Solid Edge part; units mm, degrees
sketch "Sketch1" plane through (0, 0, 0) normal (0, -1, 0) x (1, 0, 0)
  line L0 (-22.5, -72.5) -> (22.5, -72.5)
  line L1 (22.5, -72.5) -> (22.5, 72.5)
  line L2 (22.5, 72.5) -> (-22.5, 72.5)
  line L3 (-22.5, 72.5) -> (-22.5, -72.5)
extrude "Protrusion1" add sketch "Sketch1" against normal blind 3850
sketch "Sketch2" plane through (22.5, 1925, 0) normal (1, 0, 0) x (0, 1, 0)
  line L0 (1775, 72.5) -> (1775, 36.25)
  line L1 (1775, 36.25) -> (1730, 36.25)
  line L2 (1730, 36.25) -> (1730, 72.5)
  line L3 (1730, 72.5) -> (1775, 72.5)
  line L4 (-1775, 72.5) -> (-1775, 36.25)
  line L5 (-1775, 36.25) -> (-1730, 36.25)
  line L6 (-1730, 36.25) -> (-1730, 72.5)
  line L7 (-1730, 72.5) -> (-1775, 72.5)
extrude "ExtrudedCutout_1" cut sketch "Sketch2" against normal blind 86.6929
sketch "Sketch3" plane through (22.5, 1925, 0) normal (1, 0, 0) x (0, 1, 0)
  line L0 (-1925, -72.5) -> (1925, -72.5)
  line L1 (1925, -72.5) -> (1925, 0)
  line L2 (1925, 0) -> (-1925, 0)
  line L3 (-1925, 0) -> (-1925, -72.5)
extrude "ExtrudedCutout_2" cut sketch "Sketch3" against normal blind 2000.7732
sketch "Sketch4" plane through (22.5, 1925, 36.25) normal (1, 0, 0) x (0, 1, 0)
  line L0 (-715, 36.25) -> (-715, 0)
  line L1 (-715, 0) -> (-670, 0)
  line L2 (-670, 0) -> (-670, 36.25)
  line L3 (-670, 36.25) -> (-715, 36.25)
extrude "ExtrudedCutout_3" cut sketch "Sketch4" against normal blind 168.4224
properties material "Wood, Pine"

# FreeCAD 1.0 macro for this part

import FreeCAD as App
import Part
import Sketcher
from FreeCAD import Vector


def add_polygon(sketch, points):
    """Adds a closed chain of lines whose ends are joined by coincident constraints."""
    first, n = sketch.GeometryCount, len(points)
    for a, b in zip(points, points[1:] + points[:1]):
        sketch.addGeometry(Part.LineSegment(App.Vector(*a, 0), App.Vector(*b, 0)), False)
    for i in range(n):
        sketch.addConstraint(Sketcher.Constraint("Coincident", first + i, 2, first + (i + 1) % n, 1))

doc = App.newDocument("Part")
body = doc.addObject("PartDesign::Body", "Body")

# Sketch on XZ plane
sketch1 = body.newObject("Sketcher::SketchObject", "Sketch")
sketch1.AttachmentSupport = (doc.getObject("XZ_Plane"), [""])
sketch1.MapMode = "FlatFace"
add_polygon(sketch1, [(-22.5, 72.5), (-22.5, -72.5), (22.5, -72.5), (22.5, 72.5)])  # lines 0-3
sketch1.addConstraint(Sketcher.Constraint("Vertical", 0))
sketch1.addConstraint(Sketcher.Constraint("Horizontal", 1))
sketch1.addConstraint(Sketcher.Constraint("Vertical", 2))
sketch1.addConstraint(Sketcher.Constraint("Horizontal", 3))
sketch1.addConstraint(Sketcher.Constraint("Symmetric", 0, 2, 2, 2, -1, 1))
sketch1.addConstraint(Sketcher.Constraint("DistanceX", 1, 1, 1, 2, 45.0))
sketch1.addConstraint(Sketcher.Constraint("DistanceY", 0, 2, 0, 1, 145.0))
pad1 = body.newObject("PartDesign::Pad", "Pad")
pad1.Profile = sketch1
pad1.Length = 3850
pad1.Reversed = True

# Sketch on YZ plane
sketch2 = body.newObject("Sketcher::SketchObject", "Sketch001")
sketch2.AttachmentSupport = (doc.getObject("YZ_Plane"), [""])
sketch2.MapMode = "FlatFace"
sketch2.AttachmentOffset = App.Placement(Vector(0, 0, 22.5), App.Rotation())
add_polygon(sketch2, [(3700, 36.25), (3700, 72.5), (3655, 72.5), (3655, 36.25)])  # lines 0-3
add_polygon(sketch2, [(195, 72.5), (150, 72.5), (150, 36.25), (195, 36.25)])  # lines 4-7
sketch2.addConstraint(Sketcher.Constraint("Vertical", 0))
sketch2.addConstraint(Sketcher.Constraint("Horizontal", 1))
sketch2.addConstraint(Sketcher.Constraint("Vertical", 2))
sketch2.addConstraint(Sketcher.Constraint("Horizontal", 3))
sketch2.addConstraint(Sketcher.Constraint("Horizontal", 4))
sketch2.addConstraint(Sketcher.Constraint("Vertical", 5))
sketch2.addConstraint(Sketcher.Constraint("Horizontal", 6))
sketch2.addConstraint(Sketcher.Constraint("Vertical", 7))
sketch2.addConstraint(Sketcher.Constraint("Horizontal", 1, 2, 4, 2))
sketch2.addConstraint(Sketcher.Constraint("Horizontal", 3, 2, 5, 2))
sketch2.addConstraint(Sketcher.Constraint("Equal", 3, 4))
sketch2.addConstraint(Sketcher.Constraint("DistanceX", 1, 2, 1, 1, 45.0))
sketch2.addConstraint(Sketcher.Constraint("DistanceX", -1, 1, 0, 2, 3700.0))
sketch2.addConstraint(Sketcher.Constraint("DistanceX", -1, 1, 4, 2, 150.0))
sketch2.addConstraint(Sketcher.Constraint("DistanceY", 0, 1, 0, 2, 36.25))
sketch2.addConstraint(Sketcher.Constraint("DistanceY", -1, 1, 0, 2, 72.5))
pocket1 = body.newObject("PartDesign::Pocket", "Pocket")
pocket1.Profile = sketch2
pocket1.Length = 86.6929

# Sketch on YZ plane
sketch3 = body.newObject("Sketcher::SketchObject", "Sketch002")
sketch3.AttachmentSupport = (doc.getObject("YZ_Plane"), [""])
sketch3.MapMode = "FlatFace"
sketch3.AttachmentOffset = App.Placement(Vector(0, 0, 22.5), App.Rotation())
add_polygon(sketch3, [(0, 0), (0, -72.5), (3850, -72.5), (3850, 0)])  # lines 0-3
sketch3.addConstraint(Sketcher.Constraint("Vertical", 0))
sketch3.addConstraint(Sketcher.Constraint("Horizontal", 1))
sketch3.addConstraint(Sketcher.Constraint("Vertical", 2))
sketch3.addConstraint(Sketcher.Constraint("Horizontal", 3))
sketch3.addConstraint(Sketcher.Constraint("Coincident", 3, 2, -1, 1))
sketch3.addConstraint(Sketcher.Constraint("DistanceX", 1, 1, 1, 2, 3850.0))
sketch3.addConstraint(Sketcher.Constraint("DistanceY", 0, 2, 0, 1, 72.5))
pocket2 = body.newObject("PartDesign::Pocket", "Pocket001")
pocket2.Profile = sketch3
pocket2.Length = 2000.7732

# Sketch on YZ plane
sketch4 = body.newObject("Sketcher::SketchObject", "Sketch003")
sketch4.AttachmentSupport = (doc.getObject("YZ_Plane"), [""])
sketch4.MapMode = "FlatFace"
sketch4.AttachmentOffset = App.Placement(Vector(0, 0, 22.5), App.Rotation())
add_polygon(sketch4, [(1255, 72.5), (1210, 72.5), (1210, 36.25), (1255, 36.25)])  # lines 0-3
sketch4.addConstraint(Sketcher.Constraint("Horizontal", 0))
sketch4.addConstraint(Sketcher.Constraint("Vertical", 1))
sketch4.addConstraint(Sketcher.Constraint("Horizontal", 2))
sketch4.addConstraint(Sketcher.Constraint("Vertical", 3))
sketch4.addConstraint(Sketcher.Constraint("DistanceX", 0, 2, 0, 1, 45.0))
sketch4.addConstraint(Sketcher.Constraint("DistanceX", -1, 1, 0, 2, 1210.0))
sketch4.addConstraint(Sketcher.Constraint("DistanceY", 1, 2, 1, 1, 36.25))
sketch4.addConstraint(Sketcher.Constraint("DistanceY", -1, 1, 0, 2, 72.5))
pocket3 = body.newObject("PartDesign::Pocket", "Pocket002")
pocket3.Profile = sketch4
pocket3.Length = 168.4224

doc.recompute()
